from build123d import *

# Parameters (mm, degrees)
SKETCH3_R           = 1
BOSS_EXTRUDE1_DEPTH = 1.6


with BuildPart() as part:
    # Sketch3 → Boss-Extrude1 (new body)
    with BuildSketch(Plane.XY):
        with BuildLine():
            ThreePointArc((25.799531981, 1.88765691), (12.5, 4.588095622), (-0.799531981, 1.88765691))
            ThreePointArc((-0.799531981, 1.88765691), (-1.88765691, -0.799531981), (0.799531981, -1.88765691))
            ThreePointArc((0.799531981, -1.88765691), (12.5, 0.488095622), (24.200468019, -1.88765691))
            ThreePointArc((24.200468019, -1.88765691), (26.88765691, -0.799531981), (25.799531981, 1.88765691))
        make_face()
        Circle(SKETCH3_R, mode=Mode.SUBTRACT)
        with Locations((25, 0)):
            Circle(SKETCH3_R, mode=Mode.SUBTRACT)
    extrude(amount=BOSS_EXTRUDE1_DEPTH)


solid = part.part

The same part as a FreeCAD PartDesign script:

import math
import FreeCAD as App
import Part
import Sketcher
Q = App.Units.Quantity

doc = App.newDocument("Part")
body = doc.addObject("PartDesign::Body", "Body")

sketch1 = body.newObject("Sketcher::SketchObject", "Sketch")
sketch1.AttachmentSupport = (doc.getObject("XY_Plane"), [""])
sketch1.MapMode = "FlatFace"
sketch1.addGeometry([
    Part.ArcOfCircle(Part.Circle(App.Vector(12.5, -29.5, 0), App.Vector(0, 0, 1), 34.1), math.radians(67), math.radians(113)),
    Part.ArcOfCircle(Part.Circle(App.Vector(0, 0, 0), App.Vector(0, 0, 1), 2), math.radians(113), math.radians(293)),
    Part.ArcOfCircle(Part.Circle(App.Vector(12.5, -29.5, 0), App.Vector(0, 0, 1), 30), math.radians(67), math.radians(113)),
    Part.ArcOfCircle(Part.Circle(App.Vector(25, 0, 0), App.Vector(0, 0, 1), 2), math.radians(-113), math.radians(67)),
    Part.Circle(App.Vector(0, 0, 0), App.Vector(0, 0, 1), 1),
    Part.Circle(App.Vector(25, 0, 0), App.Vector(0, 0, 1), 1),
], False)
sketch1.addConstraint([
    Sketcher.Constraint("Tangent", 0, 2, 1, 1),
    Sketcher.Constraint("Tangent", 1, 2, 2, 2),
    Sketcher.Constraint("Tangent", 2, 1, 3, 1),
    Sketcher.Constraint("Tangent", 3, 2, 0, 1),
    Sketcher.Constraint("Coincident", 1, 3, -1, 1),
    Sketcher.Constraint("Coincident", 4, 3, -1, 1),
    Sketcher.Constraint("Coincident", 2, 3, 0, 3),
    Sketcher.Constraint("Coincident", 5, 3, 3, 3),
    Sketcher.Constraint("Equal", 4, 5),
    Sketcher.Constraint("PointOnObject", 3, 3, -1),
    Sketcher.Constraint("Diameter", 4, Q("2 mm")),
    Sketcher.Constraint("Radius", 2, Q("30 mm")),
    Sketcher.Constraint("Radius", 0, Q("34.1 mm")),
    Sketcher.Constraint("DistanceX", -1, 1, 3, 3, Q("25 mm")),
])
pad1 = body.newObject("PartDesign::Pad", "Pad")
pad1.Profile = sketch1
pad1.Length = 1.6

doc.recompute()
